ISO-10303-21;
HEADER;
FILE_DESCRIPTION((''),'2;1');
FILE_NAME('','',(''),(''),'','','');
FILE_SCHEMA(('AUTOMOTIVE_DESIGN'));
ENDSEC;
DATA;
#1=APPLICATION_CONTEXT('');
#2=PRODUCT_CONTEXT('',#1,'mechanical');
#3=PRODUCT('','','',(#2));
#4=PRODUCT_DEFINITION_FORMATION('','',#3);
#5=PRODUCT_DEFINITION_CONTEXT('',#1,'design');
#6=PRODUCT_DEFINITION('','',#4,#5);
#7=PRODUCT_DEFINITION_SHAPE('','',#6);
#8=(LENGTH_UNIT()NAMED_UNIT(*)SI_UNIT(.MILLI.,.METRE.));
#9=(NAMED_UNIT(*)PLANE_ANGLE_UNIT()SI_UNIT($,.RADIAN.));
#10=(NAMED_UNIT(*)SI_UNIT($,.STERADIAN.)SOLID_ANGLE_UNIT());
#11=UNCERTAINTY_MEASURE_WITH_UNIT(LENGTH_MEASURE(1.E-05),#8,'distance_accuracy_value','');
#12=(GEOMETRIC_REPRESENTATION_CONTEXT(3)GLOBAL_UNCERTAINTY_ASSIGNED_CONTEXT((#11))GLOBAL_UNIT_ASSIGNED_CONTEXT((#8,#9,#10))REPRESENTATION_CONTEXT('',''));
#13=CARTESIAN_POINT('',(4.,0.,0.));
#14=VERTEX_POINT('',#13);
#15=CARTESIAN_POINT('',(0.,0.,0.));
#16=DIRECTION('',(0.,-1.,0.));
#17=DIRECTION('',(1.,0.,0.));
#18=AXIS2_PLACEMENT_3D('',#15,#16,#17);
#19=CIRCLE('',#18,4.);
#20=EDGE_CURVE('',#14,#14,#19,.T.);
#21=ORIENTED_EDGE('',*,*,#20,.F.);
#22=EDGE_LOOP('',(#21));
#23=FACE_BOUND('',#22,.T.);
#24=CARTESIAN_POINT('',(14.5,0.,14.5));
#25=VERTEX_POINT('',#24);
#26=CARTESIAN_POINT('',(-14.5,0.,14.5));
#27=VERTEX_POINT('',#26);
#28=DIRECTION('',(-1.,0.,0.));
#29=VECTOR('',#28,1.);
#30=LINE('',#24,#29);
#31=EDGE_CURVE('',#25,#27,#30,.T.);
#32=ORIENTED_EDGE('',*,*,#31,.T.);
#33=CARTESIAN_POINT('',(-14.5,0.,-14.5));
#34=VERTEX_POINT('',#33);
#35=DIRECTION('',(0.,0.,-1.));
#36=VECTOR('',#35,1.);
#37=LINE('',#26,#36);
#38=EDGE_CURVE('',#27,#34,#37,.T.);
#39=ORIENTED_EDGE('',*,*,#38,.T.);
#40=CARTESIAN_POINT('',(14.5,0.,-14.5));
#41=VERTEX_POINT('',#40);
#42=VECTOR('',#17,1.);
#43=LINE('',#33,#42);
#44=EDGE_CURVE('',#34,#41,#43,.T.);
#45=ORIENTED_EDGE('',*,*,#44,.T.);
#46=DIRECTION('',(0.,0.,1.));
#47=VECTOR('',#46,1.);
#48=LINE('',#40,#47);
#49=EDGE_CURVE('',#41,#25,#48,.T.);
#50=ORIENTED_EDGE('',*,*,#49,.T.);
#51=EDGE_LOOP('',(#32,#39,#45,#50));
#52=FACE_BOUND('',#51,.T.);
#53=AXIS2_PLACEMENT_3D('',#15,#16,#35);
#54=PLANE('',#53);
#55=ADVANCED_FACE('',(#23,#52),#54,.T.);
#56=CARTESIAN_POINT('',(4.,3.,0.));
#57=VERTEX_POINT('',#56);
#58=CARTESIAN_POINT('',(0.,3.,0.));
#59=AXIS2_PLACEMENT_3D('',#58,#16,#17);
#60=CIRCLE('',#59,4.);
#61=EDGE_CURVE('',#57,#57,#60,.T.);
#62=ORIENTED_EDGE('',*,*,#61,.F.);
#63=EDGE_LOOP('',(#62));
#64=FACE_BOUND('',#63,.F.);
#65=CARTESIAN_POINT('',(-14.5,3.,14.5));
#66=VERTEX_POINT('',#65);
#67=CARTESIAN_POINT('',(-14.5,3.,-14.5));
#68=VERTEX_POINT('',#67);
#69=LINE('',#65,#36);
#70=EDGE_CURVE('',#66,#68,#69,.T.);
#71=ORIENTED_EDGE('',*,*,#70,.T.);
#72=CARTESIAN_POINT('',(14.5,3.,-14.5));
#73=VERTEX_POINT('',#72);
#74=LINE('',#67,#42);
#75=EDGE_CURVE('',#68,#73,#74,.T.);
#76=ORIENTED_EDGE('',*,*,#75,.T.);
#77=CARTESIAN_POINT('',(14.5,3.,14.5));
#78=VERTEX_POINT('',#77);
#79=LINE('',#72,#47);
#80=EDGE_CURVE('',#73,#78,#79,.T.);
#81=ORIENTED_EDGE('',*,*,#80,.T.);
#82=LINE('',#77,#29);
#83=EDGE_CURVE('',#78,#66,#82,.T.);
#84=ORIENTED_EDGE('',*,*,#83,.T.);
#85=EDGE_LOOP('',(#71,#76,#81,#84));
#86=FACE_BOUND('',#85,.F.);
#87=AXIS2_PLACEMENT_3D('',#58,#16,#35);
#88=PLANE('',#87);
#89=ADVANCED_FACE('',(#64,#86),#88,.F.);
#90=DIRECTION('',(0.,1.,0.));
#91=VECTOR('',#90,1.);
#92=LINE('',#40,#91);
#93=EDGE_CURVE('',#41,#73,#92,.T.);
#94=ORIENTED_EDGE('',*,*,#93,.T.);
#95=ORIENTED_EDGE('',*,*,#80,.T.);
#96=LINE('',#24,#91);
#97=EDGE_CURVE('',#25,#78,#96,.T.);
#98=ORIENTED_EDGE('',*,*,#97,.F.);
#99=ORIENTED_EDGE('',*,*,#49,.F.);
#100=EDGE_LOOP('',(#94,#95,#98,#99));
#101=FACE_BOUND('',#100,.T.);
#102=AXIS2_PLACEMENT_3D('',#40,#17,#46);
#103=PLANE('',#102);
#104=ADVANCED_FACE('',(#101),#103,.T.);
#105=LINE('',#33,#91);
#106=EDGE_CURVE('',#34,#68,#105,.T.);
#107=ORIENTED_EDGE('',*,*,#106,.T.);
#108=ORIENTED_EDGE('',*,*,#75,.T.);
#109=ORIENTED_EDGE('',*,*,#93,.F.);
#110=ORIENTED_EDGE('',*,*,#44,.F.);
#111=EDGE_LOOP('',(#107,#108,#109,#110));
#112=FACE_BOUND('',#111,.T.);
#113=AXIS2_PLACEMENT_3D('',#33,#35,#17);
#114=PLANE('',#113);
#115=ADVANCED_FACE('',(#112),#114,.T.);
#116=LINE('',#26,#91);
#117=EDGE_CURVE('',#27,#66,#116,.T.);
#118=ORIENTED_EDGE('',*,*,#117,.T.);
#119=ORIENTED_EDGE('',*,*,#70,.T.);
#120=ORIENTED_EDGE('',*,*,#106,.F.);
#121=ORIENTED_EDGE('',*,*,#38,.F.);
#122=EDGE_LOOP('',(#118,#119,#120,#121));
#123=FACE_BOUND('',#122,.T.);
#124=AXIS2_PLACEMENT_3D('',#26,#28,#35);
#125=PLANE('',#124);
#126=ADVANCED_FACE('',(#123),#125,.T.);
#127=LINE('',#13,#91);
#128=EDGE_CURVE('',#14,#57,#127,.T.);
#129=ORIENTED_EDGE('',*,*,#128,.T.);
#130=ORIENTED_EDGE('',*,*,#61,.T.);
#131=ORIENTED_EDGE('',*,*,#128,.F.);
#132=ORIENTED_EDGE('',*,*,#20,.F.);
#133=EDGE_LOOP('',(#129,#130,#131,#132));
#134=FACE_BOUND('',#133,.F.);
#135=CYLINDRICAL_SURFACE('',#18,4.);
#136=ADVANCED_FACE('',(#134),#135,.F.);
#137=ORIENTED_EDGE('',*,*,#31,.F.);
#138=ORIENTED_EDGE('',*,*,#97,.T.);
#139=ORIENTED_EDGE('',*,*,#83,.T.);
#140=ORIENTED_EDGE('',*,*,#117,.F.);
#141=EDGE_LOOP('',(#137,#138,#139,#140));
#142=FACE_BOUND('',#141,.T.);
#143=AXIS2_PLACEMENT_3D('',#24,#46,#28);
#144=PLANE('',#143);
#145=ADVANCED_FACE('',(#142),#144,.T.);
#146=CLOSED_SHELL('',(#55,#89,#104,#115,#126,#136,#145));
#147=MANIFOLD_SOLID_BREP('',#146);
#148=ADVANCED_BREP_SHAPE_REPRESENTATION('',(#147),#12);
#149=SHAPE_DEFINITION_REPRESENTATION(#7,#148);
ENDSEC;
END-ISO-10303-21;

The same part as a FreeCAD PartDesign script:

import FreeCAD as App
import Part
import Sketcher
Q = App.Units.Quantity

doc = App.newDocument("Part")
body = doc.addObject("PartDesign::Body", "Body")

# Sketch on XZ plane
sketch1 = body.newObject("Sketcher::SketchObject", "Sketch")
sketch1.AttachmentSupport = (doc.getObject("XZ_Plane"), [""])
sketch1.MapMode = "FlatFace"
sketch1.addGeometry([
    Part.LineSegment(App.Vector(14.5, -14.5, 0), App.Vector(14.5, 14.5, 0)),  # 0
    Part.LineSegment(App.Vector(14.5, 14.5, 0), App.Vector(-14.5, 14.5, 0)),  # 1
    Part.LineSegment(App.Vector(-14.5, 14.5, 0), App.Vector(-14.5, -14.5, 0)),  # 2
    Part.LineSegment(App.Vector(-14.5, -14.5, 0), App.Vector(14.5, -14.5, 0)),  # 3
    Part.Circle(App.Vector(0, 0, 0), App.Vector(0, 0, 1), 4),  # 4
], False)
sketch1.addConstraint([
    Sketcher.Constraint("Coincident", 0, 2, 1, 1),
    Sketcher.Constraint("Coincident", 1, 2, 2, 1),
    Sketcher.Constraint("Coincident", 2, 2, 3, 1),
    Sketcher.Constraint("Coincident", 3, 2, 0, 1),
    Sketcher.Constraint("Vertical", 0),
    Sketcher.Constraint("Horizontal", 1),
    Sketcher.Constraint("Vertical", 2),
    Sketcher.Constraint("Horizontal", 3),
    Sketcher.Constraint("Coincident", 4, 3, -1, 1),
    Sketcher.Constraint("Symmetric", 0, 2, 2, 2, -1, 1),
    Sketcher.Constraint("Equal", 3, 0),
    Sketcher.Constraint("Diameter", 4, Q("8 mm")),
    Sketcher.Constraint("DistanceX", 1, 2, 1, 1, Q("29 mm")),
])
pad1 = body.newObject("PartDesign::Pad", "Pad")
pad1.Profile = sketch1
pad1.Length = 3
pad1.Reversed = True

doc.recompute()
